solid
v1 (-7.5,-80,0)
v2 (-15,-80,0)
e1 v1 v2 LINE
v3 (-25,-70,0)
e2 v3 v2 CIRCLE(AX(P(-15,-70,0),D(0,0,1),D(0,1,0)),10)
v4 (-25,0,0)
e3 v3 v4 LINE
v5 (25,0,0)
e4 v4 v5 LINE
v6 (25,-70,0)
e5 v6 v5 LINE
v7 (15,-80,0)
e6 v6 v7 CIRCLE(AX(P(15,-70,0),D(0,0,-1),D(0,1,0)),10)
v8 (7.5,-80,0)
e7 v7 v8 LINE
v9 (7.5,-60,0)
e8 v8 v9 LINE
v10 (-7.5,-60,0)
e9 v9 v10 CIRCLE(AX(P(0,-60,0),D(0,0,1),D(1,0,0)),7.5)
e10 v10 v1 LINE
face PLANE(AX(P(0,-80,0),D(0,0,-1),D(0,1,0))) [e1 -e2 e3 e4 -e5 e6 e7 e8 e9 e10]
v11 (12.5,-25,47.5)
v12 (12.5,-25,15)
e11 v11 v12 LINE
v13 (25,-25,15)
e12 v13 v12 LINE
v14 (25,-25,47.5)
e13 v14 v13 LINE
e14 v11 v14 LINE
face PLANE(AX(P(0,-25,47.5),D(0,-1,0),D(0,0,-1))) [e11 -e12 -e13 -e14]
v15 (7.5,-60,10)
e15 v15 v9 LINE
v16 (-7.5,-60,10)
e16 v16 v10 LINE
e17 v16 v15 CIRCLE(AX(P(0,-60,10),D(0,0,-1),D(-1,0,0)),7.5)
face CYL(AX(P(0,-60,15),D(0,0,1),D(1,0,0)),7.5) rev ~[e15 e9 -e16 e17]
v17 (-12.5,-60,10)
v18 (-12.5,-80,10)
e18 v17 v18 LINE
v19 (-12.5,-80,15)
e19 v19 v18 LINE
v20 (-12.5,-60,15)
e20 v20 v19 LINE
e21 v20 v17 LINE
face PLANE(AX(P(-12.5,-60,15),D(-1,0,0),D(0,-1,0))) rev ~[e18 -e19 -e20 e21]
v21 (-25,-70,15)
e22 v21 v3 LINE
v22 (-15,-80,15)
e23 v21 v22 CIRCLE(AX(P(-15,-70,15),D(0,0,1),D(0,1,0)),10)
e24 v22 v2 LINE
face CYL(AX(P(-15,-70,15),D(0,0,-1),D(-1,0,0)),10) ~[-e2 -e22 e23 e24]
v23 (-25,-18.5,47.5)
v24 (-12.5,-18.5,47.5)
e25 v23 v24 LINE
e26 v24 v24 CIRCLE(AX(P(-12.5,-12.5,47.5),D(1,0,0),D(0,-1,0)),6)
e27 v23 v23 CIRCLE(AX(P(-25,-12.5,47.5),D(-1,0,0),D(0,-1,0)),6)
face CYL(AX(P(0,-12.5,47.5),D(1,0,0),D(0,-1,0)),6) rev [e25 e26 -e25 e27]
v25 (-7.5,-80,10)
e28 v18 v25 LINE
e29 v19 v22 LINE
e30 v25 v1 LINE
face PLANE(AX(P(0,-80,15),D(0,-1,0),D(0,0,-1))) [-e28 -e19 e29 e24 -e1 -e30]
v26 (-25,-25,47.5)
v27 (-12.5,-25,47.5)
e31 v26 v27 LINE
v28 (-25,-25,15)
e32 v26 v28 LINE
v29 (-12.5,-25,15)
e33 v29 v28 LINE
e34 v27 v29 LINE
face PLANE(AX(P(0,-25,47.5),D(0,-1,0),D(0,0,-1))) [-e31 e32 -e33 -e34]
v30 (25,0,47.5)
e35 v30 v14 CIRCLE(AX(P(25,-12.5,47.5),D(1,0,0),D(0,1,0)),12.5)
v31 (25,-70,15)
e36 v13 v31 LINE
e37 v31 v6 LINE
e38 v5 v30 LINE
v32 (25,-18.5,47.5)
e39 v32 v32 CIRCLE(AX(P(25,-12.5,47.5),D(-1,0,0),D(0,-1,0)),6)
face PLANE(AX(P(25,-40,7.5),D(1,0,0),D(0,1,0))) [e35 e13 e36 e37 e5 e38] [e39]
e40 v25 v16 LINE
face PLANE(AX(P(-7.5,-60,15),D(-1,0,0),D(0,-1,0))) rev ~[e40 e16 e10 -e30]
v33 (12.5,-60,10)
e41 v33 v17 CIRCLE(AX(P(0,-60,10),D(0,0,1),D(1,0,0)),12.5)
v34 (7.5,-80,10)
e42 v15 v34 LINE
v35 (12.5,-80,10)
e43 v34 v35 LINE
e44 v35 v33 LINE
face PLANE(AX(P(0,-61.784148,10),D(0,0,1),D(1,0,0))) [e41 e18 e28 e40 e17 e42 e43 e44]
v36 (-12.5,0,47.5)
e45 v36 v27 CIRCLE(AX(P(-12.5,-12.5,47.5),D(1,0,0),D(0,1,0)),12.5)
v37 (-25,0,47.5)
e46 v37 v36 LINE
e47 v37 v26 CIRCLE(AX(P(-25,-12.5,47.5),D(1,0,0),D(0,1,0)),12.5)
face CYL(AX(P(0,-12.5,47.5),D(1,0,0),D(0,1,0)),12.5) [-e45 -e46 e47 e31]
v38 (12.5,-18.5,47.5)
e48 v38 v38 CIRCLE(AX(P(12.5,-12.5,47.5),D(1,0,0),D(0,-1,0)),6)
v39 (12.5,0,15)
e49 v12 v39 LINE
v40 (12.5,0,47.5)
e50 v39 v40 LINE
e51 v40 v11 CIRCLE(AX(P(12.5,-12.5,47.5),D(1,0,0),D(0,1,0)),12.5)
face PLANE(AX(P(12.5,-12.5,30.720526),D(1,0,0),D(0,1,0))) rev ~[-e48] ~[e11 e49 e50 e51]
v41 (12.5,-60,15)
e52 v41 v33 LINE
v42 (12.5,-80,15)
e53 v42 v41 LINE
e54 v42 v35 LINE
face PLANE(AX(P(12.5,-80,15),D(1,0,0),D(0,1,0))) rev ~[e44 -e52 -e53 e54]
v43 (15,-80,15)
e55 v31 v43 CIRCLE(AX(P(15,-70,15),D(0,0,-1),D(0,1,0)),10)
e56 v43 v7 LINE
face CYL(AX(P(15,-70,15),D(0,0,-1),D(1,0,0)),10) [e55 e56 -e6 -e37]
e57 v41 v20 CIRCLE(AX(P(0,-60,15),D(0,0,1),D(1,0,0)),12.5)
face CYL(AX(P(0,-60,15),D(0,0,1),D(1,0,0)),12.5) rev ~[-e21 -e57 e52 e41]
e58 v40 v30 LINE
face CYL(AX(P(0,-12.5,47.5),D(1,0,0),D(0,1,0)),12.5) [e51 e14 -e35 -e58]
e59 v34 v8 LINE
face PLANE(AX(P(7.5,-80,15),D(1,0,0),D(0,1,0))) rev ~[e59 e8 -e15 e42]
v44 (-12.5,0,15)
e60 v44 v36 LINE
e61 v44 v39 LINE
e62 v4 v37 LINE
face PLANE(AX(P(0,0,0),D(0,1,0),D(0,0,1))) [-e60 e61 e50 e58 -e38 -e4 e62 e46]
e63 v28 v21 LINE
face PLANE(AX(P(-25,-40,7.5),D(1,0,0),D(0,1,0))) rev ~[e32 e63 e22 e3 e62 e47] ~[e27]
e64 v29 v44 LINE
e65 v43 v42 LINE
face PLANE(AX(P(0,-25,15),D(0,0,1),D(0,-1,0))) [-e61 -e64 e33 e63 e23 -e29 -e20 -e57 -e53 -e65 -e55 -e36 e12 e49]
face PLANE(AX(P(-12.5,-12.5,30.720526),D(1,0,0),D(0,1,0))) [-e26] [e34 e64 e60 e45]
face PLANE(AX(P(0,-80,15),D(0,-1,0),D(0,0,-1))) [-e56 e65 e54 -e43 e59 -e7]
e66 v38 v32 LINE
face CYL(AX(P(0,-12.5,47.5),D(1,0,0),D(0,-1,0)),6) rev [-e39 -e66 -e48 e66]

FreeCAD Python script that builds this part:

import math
import FreeCAD as App
import Part
import Sketcher
from FreeCAD import Vector


def edges_at(feature, points):
    """Names of the edges that pass closest to the given points."""
    edges = feature.Shape.Edges
    near = lambda p: min(range(len(edges)), key=lambda i: edges[i].distToShape(Part.Vertex(*p))[0])
    return sorted({f"Edge{near(p) + 1}" for p in points})

doc = App.newDocument("Part")
params = doc.addObject("Spreadsheet::Sheet", "Params")
for row, (alias, value) in enumerate([
    ("sketch1_diameter", "12 mm"),
    ("sketch1_radius", "12.5 mm"),
    ("sketch1_width", "80 mm"),
    ("sketch1_height", "15 mm"),
    ("sketch1_height2", "47.5 mm"),
    ("pad1_length", "50 mm"),
    ("sketch2_radius", "12.5 mm"),
    ("sketch2_height", "32.5 mm"),
    ("pocket1_length", "25 mm"),
    ("fillet_radius", "10 mm"),
    ("sketch3_radius", "7.5 mm"),
    ("sketch3_height", "20 mm"),
    ("sketch4_radius", "7.5 mm"),
    ("sketch4_radius2", "12.5 mm"),
    ("sketch4_height", "20 mm"),
    ("pocket3_length", "5 mm"),
], start=1):
    params.set(f"A{row}", alias)
    params.set(f"B{row}", "=" + value)
    params.setAlias(f"B{row}", alias)

body = doc.addObject("PartDesign::Body", "Body")

sketch1 = doc.addObject("Sketcher::SketchObject", "Sketch")
body.addObject(sketch1)
sketch1.AttachmentSupport = (doc.YZ_Plane, [""])
sketch1.MapMode = "FlatFace"
sketch1.addGeometry([
    Part.LineSegment(Vector(-80, 0, 0), Vector(0, 0, 0)),
    Part.LineSegment(Vector(0, 0, 0), Vector(0, 48, 0)),
    Part.ArcOfCircle(Part.Circle(Vector(-12, 48, 0), Vector(0, 0, 1), 12), math.radians(0), math.radians(180)),
    Part.LineSegment(Vector(-25, 48, 0), Vector(-25, 15, 0)),
    Part.LineSegment(Vector(-25, 15, 0), Vector(-80, 15, 0)),
    Part.LineSegment(Vector(-80, 15, 0), Vector(-80, 0, 0)),
    Part.Circle(Vector(-12, 48, 0), Vector(0, 0, 1), 6),
], False)
sketch1.addConstraint([
    Sketcher.Constraint("Coincident", 0, 2, 1, 1),
    Sketcher.Constraint("Tangent", 1, 2, 2, 1),
    Sketcher.Constraint("Tangent", 2, 2, 3, 1),
    Sketcher.Constraint("Coincident", 3, 2, 4, 1),
    Sketcher.Constraint("Coincident", 4, 2, 5, 1),
    Sketcher.Constraint("Coincident", 5, 2, 0, 1),
    Sketcher.Constraint("Horizontal", 0),
    Sketcher.Constraint("Vertical", 1),
    Sketcher.Constraint("Vertical", 3),
    Sketcher.Constraint("Horizontal", 4),
    Sketcher.Constraint("Vertical", 5),
    Sketcher.Constraint("Coincident", 0, 2, -1, 1),
    Sketcher.Constraint("Coincident", 6, 3, 2, 3),
    Sketcher.Constraint("Diameter", 6, 12.0),
    Sketcher.Constraint("Radius", 2, 12.5),
    Sketcher.Constraint("DistanceX", 0, 1, 0, 2, 80.0),
    Sketcher.Constraint("DistanceY", 5, 2, 5, 1, 15.0),
    Sketcher.Constraint("DistanceY", 1, 1, 1, 2, 47.5),
])
sketch1.setExpression("Constraints[13]", "Params.sketch1_diameter")
sketch1.setExpression("Constraints[14]", "Params.sketch1_radius")
sketch1.setExpression("Constraints[15]", "Params.sketch1_width")
sketch1.setExpression("Constraints[16]", "Params.sketch1_height")
sketch1.setExpression("Constraints[17]", "Params.sketch1_height2")
pad1 = doc.addObject("PartDesign::Pad", "Pad")
body.addObject(pad1)
pad1.Profile = sketch1
pad1.setExpression("Length", "Params.pad1_length")
pad1.Midplane = True

sketch2 = doc.addObject("Sketcher::SketchObject", "Sketch001")
body.addObject(sketch2)
sketch2.AttachmentSupport = (doc.YZ_Plane, [""])
sketch2.MapMode = "FlatFace"
sketch2.addGeometry([
    Part.LineSegment(Vector(-25, 15, 0), Vector(0, 15, 0)),
    Part.LineSegment(Vector(0, 15, 0), Vector(0, 48, 0)),
    Part.ArcOfCircle(Part.Circle(Vector(-12, 48, 0), Vector(0, 0, 1), 12), math.radians(0), math.radians(180)),
    Part.LineSegment(Vector(-25, 48, 0), Vector(-25, 15, 0)),
], False)
sketch2.addConstraint([
    Sketcher.Constraint("Coincident", 0, 2, 1, 1),
    Sketcher.Constraint("Tangent", 1, 2, 2, 1),
    Sketcher.Constraint("Tangent", 2, 2, 3, 1),
    Sketcher.Constraint("Coincident", 3, 2, 0, 1),
    Sketcher.Constraint("Horizontal", 0),
    Sketcher.Constraint("Vertical", 1),
    Sketcher.Constraint("Vertical", 3),
    Sketcher.Constraint("PointOnObject", 0, 2, -2),
    Sketcher.Constraint("Radius", 2, 12.5),
    Sketcher.Constraint("DistanceY", 1, 1, 1, 2, 32.5),
    Sketcher.Constraint("DistanceY", -1, 1, 0, 2, 15.0),
])
sketch2.setExpression("Constraints[8]", "Params.sketch2_radius")
sketch2.setExpression("Constraints[9]", "Params.sketch2_height")
pocket1 = doc.addObject("PartDesign::Pocket", "Pocket")
body.addObject(pocket1)
pocket1.Profile = sketch2
pocket1.setExpression("Length", "Params.pocket1_length")
pocket1.Midplane = True
doc.recompute()

fillet = doc.addObject("PartDesign::Fillet", "Fillet")
body.addObject(fillet)
fillet.Base = (pocket1, edges_at(pocket1, [(25, -80, 7.5), (-25, -80, 7.5)]))
fillet.setExpression("Radius", "Params.fillet_radius")

sketch3 = doc.addObject("Sketcher::SketchObject", "Sketch002")
body.addObject(sketch3)
sketch3.AttachmentSupport = (doc.XY_Plane, [""])
sketch3.MapMode = "FlatFace"
sketch3.AttachmentOffset = App.Placement(Vector(0, 0, 15), App.Rotation())
sketch3.addGeometry([
    Part.LineSegment(Vector(-8, -60, 0), Vector(-8, -80, 0)),
    Part.LineSegment(Vector(-8, -80, 0), Vector(8, -80, 0)),
    Part.LineSegment(Vector(8, -80, 0), Vector(8, -60, 0)),
    Part.ArcOfCircle(Part.Circle(Vector(0, -60, 0), Vector(0, 0, 1), 8), math.radians(0), math.radians(180)),
], False)
sketch3.addConstraint([
    Sketcher.Constraint("Coincident", 0, 2, 1, 1),
    Sketcher.Constraint("Coincident", 1, 2, 2, 1),
    Sketcher.Constraint("Tangent", 2, 2, 3, 1),
    Sketcher.Constraint("Tangent", 3, 2, 0, 1),
    Sketcher.Constraint("Vertical", 0),
    Sketcher.Constraint("Horizontal", 1),
    Sketcher.Constraint("Vertical", 2),
    Sketcher.Constraint("PointOnObject", 3, 3, -2),
    Sketcher.Constraint("Radius", 3, 7.5),
    Sketcher.Constraint("DistanceY", 0, 2, 0, 1, 20.0),
    Sketcher.Constraint("DistanceY", 3, 3, -1, 1, 60.0),
])
sketch3.setExpression("Constraints[8]", "Params.sketch3_radius")
sketch3.setExpression("Constraints[9]", "Params.sketch3_height")
pocket2 = doc.addObject("PartDesign::Pocket", "Pocket001")
body.addObject(pocket2)
pocket2.Profile = sketch3
pocket2.Type = "ThroughAll"

sketch4 = doc.addObject("Sketcher::SketchObject", "Sketch003")
body.addObject(sketch4)
sketch4.AttachmentSupport = (doc.XY_Plane, [""])
sketch4.MapMode = "FlatFace"
sketch4.AttachmentOffset = App.Placement(Vector(0, 0, 15), App.Rotation())
sketch4.addGeometry([
    Part.ArcOfCircle(Part.Circle(Vector(0, -60, 0), Vector(0, 0, 1), 8), math.radians(0), math.radians(180)),
    Part.LineSegment(Vector(8, -60, 0), Vector(8, -80, 0)),
    Part.LineSegment(Vector(8, -80, 0), Vector(12, -80, 0)),
    Part.LineSegment(Vector(12, -80, 0), Vector(12, -60, 0)),
    Part.ArcOfCircle(Part.Circle(Vector(0, -60, 0), Vector(0, 0, 1), 12), math.radians(0), math.radians(180)),
    Part.LineSegment(Vector(-12, -60, 0), Vector(-12, -80, 0)),
    Part.LineSegment(Vector(-12, -80, 0), Vector(-8, -80, 0)),
    Part.LineSegment(Vector(-8, -80, 0), Vector(-8, -60, 0)),
], False)
sketch4.addConstraint([
    Sketcher.Constraint("Tangent", 0, 1, 1, 1),
    Sketcher.Constraint("Coincident", 1, 2, 2, 1),
    Sketcher.Constraint("Coincident", 2, 2, 3, 1),
    Sketcher.Constraint("Tangent", 3, 2, 4, 1),
    Sketcher.Constraint("Tangent", 4, 2, 5, 1),
    Sketcher.Constraint("Coincident", 5, 2, 6, 1),
    Sketcher.Constraint("Coincident", 6, 2, 7, 1),
    Sketcher.Constraint("Tangent", 7, 2, 0, 2),
    Sketcher.Constraint("Vertical", 1),
    Sketcher.Constraint("Horizontal", 2),
    Sketcher.Constraint("Vertical", 3),
    Sketcher.Constraint("Vertical", 5),
    Sketcher.Constraint("Horizontal", 6),
    Sketcher.Constraint("Vertical", 7),
    Sketcher.Constraint("Coincident", 4, 3, 0, 3),
    Sketcher.Constraint("Symmetric", 2, 2, 5, 2, -2),
    Sketcher.Constraint("Radius", 0, 7.5),
    Sketcher.Constraint("Radius", 4, 12.5),
    Sketcher.Constraint("DistanceY", 1, 2, 1, 1, 20.0),
    Sketcher.Constraint("DistanceY", 0, 3, -1, 1, 60.0),
])
sketch4.setExpression("Constraints[16]", "Params.sketch4_radius")
sketch4.setExpression("Constraints[17]", "Params.sketch4_radius2")
sketch4.setExpression("Constraints[18]", "Params.sketch4_height")
pocket3 = doc.addObject("PartDesign::Pocket", "Pocket002")
body.addObject(pocket3)
pocket3.Profile = sketch4
pocket3.setExpression("Length", "Params.pocket3_length")

doc.recompute()
